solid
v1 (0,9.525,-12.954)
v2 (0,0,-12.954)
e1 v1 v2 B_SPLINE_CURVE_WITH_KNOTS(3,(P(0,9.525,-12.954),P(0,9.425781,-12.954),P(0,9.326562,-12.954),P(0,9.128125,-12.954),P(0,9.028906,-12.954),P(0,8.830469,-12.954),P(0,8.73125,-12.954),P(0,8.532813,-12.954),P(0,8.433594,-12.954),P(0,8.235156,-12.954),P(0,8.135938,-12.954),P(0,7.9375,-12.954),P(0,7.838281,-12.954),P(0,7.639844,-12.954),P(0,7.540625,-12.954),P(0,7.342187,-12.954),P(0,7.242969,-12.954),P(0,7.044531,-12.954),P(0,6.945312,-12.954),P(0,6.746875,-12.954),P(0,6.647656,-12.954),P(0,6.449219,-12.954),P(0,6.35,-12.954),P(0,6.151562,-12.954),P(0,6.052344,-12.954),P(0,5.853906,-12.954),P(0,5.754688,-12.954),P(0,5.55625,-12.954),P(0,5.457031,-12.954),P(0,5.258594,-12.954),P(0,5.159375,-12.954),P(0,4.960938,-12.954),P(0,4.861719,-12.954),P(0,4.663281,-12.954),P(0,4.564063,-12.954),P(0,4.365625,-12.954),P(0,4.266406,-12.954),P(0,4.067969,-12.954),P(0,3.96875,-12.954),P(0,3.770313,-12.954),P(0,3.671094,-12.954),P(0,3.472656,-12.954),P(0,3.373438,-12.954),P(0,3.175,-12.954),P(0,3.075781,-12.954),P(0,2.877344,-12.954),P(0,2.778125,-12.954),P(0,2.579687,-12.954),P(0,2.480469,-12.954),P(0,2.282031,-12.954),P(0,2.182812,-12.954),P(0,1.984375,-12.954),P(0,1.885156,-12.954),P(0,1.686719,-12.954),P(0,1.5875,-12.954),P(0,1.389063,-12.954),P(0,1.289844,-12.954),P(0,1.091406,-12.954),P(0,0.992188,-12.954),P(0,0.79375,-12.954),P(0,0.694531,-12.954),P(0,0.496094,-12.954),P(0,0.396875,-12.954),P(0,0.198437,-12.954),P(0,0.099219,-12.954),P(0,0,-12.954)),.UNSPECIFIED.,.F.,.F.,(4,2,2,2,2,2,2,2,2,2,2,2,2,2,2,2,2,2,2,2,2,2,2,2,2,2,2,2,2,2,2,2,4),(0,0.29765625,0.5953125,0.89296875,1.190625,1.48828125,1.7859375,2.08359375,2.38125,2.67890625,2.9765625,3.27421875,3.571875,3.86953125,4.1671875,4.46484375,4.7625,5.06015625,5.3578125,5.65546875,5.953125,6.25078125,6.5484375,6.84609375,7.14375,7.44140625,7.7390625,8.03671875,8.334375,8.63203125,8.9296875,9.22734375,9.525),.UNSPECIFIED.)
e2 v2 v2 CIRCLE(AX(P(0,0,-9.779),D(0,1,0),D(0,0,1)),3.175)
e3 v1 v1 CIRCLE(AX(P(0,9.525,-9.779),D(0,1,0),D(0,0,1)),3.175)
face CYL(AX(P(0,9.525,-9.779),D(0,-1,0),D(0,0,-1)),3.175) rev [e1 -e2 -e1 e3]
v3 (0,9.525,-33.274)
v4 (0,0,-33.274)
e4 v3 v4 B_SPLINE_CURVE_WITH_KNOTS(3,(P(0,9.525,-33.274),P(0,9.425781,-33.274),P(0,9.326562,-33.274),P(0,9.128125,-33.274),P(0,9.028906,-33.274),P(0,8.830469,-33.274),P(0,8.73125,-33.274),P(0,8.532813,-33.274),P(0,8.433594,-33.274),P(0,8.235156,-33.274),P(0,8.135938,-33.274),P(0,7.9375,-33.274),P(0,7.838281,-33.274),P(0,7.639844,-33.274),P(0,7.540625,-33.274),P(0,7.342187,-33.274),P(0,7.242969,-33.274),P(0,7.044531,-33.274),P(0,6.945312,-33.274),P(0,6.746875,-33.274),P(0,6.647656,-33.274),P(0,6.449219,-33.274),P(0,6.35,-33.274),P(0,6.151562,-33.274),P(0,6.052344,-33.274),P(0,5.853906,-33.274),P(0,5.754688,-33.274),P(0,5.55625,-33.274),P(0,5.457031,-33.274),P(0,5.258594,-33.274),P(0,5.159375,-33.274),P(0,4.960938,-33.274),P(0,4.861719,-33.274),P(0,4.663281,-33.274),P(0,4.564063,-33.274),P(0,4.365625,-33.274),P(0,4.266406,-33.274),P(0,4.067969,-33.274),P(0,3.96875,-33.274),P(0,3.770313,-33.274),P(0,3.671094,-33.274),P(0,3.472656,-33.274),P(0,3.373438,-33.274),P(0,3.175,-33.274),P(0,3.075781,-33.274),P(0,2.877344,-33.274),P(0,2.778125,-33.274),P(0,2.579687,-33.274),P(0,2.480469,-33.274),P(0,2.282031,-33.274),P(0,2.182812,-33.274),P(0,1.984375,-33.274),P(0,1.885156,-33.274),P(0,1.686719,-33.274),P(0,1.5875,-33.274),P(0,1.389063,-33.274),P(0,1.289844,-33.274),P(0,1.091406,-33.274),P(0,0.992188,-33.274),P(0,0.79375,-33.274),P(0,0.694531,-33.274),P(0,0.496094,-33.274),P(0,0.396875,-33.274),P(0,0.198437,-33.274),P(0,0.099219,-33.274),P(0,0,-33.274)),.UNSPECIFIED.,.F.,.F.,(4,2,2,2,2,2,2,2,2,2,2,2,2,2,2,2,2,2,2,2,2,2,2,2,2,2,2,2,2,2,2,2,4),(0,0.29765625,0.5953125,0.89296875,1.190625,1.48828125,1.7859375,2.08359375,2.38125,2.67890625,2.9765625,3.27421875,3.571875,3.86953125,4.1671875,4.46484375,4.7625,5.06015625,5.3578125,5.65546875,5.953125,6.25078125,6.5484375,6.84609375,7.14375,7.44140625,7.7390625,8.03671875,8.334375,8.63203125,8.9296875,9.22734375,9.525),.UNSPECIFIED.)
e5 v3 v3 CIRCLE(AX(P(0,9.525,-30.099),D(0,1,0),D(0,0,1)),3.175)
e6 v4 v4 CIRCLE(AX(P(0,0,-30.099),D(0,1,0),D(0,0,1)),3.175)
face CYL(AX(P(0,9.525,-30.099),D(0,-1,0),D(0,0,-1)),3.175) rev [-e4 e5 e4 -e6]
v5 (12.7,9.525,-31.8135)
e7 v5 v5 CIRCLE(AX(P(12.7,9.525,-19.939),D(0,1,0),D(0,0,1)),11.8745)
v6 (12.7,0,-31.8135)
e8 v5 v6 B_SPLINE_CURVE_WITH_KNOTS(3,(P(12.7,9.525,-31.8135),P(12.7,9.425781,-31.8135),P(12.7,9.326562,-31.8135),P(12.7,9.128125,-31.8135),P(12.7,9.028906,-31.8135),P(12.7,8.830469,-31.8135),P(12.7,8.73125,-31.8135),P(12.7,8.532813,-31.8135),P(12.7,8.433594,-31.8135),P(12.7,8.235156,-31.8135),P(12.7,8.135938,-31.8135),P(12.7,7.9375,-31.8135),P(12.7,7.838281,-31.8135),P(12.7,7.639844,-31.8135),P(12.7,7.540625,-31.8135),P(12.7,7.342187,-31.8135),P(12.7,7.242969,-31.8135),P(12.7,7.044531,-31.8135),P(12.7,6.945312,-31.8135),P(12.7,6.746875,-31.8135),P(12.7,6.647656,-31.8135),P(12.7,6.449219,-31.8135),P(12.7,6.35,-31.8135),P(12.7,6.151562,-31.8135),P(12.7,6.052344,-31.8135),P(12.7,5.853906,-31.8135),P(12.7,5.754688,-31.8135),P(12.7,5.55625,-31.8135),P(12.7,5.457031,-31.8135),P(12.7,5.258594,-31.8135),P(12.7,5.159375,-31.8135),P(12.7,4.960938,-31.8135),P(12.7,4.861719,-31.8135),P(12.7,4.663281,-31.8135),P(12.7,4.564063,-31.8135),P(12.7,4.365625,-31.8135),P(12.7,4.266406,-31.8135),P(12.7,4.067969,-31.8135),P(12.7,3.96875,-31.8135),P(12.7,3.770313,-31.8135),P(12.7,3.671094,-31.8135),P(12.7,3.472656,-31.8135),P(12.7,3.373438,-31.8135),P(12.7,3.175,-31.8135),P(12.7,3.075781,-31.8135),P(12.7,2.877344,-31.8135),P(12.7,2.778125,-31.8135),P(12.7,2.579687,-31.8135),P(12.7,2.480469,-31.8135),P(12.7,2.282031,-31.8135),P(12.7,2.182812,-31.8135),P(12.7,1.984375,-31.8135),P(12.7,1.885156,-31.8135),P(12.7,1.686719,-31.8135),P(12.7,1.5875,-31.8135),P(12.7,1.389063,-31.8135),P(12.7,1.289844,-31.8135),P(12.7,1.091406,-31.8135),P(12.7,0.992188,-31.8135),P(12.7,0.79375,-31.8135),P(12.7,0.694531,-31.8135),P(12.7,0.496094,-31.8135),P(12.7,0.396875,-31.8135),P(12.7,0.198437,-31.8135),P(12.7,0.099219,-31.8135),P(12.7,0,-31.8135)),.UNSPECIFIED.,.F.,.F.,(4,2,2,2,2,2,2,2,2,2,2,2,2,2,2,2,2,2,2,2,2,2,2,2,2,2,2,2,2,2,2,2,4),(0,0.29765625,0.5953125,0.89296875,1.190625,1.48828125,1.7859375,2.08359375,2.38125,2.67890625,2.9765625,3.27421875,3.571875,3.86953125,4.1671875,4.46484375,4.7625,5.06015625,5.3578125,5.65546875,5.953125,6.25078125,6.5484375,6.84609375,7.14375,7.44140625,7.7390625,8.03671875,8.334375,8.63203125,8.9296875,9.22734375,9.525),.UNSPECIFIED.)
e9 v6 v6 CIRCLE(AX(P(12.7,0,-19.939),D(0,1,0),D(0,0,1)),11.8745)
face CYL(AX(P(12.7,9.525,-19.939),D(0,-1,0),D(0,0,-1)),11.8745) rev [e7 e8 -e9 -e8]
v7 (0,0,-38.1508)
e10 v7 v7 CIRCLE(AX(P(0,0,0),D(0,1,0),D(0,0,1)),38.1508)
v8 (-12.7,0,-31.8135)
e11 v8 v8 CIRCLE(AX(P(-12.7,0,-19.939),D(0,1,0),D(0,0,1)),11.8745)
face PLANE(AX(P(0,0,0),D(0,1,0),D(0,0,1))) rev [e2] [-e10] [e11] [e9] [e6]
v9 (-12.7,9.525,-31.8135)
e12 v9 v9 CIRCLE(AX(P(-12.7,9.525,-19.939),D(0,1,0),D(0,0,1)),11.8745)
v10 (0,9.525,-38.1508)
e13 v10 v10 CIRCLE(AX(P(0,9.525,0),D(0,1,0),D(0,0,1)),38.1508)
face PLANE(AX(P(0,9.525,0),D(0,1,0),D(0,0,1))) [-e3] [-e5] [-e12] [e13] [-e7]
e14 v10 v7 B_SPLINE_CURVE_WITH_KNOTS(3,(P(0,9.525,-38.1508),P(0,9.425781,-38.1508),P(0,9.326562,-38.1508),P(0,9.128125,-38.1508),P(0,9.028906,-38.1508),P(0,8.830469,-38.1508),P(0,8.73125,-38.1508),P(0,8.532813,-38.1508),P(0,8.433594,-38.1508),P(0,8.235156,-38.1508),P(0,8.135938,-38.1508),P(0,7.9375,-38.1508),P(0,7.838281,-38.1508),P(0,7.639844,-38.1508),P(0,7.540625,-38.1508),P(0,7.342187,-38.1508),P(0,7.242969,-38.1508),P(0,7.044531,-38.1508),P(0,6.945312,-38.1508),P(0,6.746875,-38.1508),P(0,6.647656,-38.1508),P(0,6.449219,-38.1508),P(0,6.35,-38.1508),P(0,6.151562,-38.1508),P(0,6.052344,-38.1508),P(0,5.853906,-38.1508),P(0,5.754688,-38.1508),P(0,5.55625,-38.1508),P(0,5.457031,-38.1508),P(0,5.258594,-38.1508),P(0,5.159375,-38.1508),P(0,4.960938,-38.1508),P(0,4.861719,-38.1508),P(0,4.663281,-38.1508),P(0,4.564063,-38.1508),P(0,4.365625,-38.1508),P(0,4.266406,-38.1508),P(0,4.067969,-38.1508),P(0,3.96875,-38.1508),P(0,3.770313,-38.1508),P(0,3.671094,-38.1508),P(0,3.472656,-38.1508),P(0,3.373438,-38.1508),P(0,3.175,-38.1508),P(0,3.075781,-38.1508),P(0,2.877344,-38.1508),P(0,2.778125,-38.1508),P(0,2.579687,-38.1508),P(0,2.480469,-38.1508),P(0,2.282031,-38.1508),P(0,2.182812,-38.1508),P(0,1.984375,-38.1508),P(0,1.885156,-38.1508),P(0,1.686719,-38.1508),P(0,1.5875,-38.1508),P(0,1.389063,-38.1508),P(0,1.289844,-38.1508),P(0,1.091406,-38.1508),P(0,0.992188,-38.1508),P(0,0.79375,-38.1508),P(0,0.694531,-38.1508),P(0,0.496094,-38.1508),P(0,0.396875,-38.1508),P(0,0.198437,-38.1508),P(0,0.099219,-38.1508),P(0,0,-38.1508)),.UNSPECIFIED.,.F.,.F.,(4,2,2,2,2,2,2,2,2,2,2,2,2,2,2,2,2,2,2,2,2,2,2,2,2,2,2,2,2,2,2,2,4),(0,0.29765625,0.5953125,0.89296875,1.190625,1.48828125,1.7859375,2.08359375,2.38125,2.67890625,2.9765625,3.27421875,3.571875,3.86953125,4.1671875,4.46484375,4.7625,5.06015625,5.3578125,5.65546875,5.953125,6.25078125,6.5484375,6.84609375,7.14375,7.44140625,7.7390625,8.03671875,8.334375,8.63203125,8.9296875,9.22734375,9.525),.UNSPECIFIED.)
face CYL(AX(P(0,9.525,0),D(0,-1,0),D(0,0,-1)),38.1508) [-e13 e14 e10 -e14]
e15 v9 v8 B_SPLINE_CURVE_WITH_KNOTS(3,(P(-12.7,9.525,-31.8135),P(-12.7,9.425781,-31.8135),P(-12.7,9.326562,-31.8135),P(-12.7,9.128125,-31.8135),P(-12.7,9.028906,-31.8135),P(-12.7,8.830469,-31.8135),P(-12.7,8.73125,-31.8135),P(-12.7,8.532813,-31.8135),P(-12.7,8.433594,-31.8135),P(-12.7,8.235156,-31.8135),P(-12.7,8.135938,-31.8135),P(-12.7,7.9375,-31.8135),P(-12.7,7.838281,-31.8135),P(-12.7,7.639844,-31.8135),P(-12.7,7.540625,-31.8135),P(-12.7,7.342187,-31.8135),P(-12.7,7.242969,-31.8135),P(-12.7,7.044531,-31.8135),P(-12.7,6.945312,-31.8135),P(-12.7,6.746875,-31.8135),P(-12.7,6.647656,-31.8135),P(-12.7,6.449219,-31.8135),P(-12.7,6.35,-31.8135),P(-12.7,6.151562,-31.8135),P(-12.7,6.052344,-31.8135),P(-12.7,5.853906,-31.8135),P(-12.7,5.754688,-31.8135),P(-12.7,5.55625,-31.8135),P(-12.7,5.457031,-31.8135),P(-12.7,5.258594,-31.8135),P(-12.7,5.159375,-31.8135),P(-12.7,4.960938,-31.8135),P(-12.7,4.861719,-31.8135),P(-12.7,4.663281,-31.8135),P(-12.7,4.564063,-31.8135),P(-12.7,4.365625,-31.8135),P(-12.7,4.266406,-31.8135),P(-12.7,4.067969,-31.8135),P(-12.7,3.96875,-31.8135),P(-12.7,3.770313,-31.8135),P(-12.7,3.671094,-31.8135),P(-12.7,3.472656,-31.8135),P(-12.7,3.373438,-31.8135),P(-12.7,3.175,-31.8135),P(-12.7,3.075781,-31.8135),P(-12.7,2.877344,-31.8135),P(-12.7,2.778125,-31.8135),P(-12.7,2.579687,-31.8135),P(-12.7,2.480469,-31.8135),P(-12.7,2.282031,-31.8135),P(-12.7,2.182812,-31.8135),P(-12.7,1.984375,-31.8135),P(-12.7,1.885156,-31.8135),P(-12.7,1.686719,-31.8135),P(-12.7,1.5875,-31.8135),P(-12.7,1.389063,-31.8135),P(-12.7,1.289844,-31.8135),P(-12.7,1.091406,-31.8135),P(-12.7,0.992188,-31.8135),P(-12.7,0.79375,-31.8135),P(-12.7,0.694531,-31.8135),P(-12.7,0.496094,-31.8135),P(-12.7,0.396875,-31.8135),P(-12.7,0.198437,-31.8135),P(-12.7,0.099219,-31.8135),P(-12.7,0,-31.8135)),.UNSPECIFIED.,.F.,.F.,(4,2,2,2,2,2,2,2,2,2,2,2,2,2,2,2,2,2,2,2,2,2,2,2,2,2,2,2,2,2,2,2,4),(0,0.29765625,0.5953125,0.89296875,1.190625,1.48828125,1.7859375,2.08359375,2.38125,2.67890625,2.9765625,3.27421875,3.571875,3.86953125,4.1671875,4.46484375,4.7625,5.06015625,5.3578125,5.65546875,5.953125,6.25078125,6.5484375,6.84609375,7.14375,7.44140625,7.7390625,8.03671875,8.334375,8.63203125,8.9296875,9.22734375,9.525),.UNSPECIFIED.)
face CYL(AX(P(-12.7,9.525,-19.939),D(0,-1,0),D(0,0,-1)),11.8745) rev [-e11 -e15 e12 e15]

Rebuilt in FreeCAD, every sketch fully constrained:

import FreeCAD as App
import Part
import Sketcher

V = App.Vector
Q = App.Units.Quantity

doc = App.newDocument("Part")
body = doc.addObject("PartDesign::Body", "Body")

# Sketch on XZ plane
sketch1 = doc.addObject("Sketcher::SketchObject", "Sketch")
body.addObject(sketch1)
sketch1.AttachmentSupport = (doc.XZ_Plane, [""])
sketch1.MapMode = "FlatFace"
sketch1.addGeometry([
    Part.Circle(V(0, 0, 0), V(0, 0, 1), 38.2),  # 0
    Part.Circle(V(12.7, -19.9, 0), V(0, 0, 1), 11.9),  # 1
    Part.Circle(V(0, -9.8, 0), V(0, 0, 1), 3.2),  # 2
    Part.Circle(V(-12.7, -19.9, 0), V(0, 0, 1), 11.9),  # 3
    Part.Circle(V(0, -30.1, 0), V(0, 0, 1), 3.2),  # 4
], False)
sketch1.addConstraint([
    Sketcher.Constraint("Coincident", 0, 3, -1, 1),
    Sketcher.Constraint("Equal", 1, 3),
    Sketcher.Constraint("Equal", 2, 4),
    Sketcher.Constraint("Symmetric", 1, 3, 3, 3, -2),
    Sketcher.Constraint("PointOnObject", 2, 3, -2),
    Sketcher.Constraint("PointOnObject", 4, 3, -2),
    Sketcher.Constraint("Diameter", 2, Q("0.25 in")),
    Sketcher.Constraint("Diameter", 0, Q("3.004 in")),
    Sketcher.Constraint("Diameter", 1, Q("0.935 in")),
    Sketcher.Constraint("DistanceX", 3, 3, 1, 3, Q("1 in")),
    Sketcher.Constraint("DistanceY", 1, 3, 2, 3, Q("0.4 in")),
    Sketcher.Constraint("DistanceY", 4, 3, 1, 3, Q("0.4 in")),
    Sketcher.Constraint("DistanceY", 1, 3, -1, 1, Q("0.785 in")),
])
pad1 = doc.addObject("PartDesign::Pad", "Pad")
body.addObject(pad1)
pad1.Profile = sketch1
pad1.Length = Q("0.375 in")
pad1.Reversed = True

doc.recompute()
